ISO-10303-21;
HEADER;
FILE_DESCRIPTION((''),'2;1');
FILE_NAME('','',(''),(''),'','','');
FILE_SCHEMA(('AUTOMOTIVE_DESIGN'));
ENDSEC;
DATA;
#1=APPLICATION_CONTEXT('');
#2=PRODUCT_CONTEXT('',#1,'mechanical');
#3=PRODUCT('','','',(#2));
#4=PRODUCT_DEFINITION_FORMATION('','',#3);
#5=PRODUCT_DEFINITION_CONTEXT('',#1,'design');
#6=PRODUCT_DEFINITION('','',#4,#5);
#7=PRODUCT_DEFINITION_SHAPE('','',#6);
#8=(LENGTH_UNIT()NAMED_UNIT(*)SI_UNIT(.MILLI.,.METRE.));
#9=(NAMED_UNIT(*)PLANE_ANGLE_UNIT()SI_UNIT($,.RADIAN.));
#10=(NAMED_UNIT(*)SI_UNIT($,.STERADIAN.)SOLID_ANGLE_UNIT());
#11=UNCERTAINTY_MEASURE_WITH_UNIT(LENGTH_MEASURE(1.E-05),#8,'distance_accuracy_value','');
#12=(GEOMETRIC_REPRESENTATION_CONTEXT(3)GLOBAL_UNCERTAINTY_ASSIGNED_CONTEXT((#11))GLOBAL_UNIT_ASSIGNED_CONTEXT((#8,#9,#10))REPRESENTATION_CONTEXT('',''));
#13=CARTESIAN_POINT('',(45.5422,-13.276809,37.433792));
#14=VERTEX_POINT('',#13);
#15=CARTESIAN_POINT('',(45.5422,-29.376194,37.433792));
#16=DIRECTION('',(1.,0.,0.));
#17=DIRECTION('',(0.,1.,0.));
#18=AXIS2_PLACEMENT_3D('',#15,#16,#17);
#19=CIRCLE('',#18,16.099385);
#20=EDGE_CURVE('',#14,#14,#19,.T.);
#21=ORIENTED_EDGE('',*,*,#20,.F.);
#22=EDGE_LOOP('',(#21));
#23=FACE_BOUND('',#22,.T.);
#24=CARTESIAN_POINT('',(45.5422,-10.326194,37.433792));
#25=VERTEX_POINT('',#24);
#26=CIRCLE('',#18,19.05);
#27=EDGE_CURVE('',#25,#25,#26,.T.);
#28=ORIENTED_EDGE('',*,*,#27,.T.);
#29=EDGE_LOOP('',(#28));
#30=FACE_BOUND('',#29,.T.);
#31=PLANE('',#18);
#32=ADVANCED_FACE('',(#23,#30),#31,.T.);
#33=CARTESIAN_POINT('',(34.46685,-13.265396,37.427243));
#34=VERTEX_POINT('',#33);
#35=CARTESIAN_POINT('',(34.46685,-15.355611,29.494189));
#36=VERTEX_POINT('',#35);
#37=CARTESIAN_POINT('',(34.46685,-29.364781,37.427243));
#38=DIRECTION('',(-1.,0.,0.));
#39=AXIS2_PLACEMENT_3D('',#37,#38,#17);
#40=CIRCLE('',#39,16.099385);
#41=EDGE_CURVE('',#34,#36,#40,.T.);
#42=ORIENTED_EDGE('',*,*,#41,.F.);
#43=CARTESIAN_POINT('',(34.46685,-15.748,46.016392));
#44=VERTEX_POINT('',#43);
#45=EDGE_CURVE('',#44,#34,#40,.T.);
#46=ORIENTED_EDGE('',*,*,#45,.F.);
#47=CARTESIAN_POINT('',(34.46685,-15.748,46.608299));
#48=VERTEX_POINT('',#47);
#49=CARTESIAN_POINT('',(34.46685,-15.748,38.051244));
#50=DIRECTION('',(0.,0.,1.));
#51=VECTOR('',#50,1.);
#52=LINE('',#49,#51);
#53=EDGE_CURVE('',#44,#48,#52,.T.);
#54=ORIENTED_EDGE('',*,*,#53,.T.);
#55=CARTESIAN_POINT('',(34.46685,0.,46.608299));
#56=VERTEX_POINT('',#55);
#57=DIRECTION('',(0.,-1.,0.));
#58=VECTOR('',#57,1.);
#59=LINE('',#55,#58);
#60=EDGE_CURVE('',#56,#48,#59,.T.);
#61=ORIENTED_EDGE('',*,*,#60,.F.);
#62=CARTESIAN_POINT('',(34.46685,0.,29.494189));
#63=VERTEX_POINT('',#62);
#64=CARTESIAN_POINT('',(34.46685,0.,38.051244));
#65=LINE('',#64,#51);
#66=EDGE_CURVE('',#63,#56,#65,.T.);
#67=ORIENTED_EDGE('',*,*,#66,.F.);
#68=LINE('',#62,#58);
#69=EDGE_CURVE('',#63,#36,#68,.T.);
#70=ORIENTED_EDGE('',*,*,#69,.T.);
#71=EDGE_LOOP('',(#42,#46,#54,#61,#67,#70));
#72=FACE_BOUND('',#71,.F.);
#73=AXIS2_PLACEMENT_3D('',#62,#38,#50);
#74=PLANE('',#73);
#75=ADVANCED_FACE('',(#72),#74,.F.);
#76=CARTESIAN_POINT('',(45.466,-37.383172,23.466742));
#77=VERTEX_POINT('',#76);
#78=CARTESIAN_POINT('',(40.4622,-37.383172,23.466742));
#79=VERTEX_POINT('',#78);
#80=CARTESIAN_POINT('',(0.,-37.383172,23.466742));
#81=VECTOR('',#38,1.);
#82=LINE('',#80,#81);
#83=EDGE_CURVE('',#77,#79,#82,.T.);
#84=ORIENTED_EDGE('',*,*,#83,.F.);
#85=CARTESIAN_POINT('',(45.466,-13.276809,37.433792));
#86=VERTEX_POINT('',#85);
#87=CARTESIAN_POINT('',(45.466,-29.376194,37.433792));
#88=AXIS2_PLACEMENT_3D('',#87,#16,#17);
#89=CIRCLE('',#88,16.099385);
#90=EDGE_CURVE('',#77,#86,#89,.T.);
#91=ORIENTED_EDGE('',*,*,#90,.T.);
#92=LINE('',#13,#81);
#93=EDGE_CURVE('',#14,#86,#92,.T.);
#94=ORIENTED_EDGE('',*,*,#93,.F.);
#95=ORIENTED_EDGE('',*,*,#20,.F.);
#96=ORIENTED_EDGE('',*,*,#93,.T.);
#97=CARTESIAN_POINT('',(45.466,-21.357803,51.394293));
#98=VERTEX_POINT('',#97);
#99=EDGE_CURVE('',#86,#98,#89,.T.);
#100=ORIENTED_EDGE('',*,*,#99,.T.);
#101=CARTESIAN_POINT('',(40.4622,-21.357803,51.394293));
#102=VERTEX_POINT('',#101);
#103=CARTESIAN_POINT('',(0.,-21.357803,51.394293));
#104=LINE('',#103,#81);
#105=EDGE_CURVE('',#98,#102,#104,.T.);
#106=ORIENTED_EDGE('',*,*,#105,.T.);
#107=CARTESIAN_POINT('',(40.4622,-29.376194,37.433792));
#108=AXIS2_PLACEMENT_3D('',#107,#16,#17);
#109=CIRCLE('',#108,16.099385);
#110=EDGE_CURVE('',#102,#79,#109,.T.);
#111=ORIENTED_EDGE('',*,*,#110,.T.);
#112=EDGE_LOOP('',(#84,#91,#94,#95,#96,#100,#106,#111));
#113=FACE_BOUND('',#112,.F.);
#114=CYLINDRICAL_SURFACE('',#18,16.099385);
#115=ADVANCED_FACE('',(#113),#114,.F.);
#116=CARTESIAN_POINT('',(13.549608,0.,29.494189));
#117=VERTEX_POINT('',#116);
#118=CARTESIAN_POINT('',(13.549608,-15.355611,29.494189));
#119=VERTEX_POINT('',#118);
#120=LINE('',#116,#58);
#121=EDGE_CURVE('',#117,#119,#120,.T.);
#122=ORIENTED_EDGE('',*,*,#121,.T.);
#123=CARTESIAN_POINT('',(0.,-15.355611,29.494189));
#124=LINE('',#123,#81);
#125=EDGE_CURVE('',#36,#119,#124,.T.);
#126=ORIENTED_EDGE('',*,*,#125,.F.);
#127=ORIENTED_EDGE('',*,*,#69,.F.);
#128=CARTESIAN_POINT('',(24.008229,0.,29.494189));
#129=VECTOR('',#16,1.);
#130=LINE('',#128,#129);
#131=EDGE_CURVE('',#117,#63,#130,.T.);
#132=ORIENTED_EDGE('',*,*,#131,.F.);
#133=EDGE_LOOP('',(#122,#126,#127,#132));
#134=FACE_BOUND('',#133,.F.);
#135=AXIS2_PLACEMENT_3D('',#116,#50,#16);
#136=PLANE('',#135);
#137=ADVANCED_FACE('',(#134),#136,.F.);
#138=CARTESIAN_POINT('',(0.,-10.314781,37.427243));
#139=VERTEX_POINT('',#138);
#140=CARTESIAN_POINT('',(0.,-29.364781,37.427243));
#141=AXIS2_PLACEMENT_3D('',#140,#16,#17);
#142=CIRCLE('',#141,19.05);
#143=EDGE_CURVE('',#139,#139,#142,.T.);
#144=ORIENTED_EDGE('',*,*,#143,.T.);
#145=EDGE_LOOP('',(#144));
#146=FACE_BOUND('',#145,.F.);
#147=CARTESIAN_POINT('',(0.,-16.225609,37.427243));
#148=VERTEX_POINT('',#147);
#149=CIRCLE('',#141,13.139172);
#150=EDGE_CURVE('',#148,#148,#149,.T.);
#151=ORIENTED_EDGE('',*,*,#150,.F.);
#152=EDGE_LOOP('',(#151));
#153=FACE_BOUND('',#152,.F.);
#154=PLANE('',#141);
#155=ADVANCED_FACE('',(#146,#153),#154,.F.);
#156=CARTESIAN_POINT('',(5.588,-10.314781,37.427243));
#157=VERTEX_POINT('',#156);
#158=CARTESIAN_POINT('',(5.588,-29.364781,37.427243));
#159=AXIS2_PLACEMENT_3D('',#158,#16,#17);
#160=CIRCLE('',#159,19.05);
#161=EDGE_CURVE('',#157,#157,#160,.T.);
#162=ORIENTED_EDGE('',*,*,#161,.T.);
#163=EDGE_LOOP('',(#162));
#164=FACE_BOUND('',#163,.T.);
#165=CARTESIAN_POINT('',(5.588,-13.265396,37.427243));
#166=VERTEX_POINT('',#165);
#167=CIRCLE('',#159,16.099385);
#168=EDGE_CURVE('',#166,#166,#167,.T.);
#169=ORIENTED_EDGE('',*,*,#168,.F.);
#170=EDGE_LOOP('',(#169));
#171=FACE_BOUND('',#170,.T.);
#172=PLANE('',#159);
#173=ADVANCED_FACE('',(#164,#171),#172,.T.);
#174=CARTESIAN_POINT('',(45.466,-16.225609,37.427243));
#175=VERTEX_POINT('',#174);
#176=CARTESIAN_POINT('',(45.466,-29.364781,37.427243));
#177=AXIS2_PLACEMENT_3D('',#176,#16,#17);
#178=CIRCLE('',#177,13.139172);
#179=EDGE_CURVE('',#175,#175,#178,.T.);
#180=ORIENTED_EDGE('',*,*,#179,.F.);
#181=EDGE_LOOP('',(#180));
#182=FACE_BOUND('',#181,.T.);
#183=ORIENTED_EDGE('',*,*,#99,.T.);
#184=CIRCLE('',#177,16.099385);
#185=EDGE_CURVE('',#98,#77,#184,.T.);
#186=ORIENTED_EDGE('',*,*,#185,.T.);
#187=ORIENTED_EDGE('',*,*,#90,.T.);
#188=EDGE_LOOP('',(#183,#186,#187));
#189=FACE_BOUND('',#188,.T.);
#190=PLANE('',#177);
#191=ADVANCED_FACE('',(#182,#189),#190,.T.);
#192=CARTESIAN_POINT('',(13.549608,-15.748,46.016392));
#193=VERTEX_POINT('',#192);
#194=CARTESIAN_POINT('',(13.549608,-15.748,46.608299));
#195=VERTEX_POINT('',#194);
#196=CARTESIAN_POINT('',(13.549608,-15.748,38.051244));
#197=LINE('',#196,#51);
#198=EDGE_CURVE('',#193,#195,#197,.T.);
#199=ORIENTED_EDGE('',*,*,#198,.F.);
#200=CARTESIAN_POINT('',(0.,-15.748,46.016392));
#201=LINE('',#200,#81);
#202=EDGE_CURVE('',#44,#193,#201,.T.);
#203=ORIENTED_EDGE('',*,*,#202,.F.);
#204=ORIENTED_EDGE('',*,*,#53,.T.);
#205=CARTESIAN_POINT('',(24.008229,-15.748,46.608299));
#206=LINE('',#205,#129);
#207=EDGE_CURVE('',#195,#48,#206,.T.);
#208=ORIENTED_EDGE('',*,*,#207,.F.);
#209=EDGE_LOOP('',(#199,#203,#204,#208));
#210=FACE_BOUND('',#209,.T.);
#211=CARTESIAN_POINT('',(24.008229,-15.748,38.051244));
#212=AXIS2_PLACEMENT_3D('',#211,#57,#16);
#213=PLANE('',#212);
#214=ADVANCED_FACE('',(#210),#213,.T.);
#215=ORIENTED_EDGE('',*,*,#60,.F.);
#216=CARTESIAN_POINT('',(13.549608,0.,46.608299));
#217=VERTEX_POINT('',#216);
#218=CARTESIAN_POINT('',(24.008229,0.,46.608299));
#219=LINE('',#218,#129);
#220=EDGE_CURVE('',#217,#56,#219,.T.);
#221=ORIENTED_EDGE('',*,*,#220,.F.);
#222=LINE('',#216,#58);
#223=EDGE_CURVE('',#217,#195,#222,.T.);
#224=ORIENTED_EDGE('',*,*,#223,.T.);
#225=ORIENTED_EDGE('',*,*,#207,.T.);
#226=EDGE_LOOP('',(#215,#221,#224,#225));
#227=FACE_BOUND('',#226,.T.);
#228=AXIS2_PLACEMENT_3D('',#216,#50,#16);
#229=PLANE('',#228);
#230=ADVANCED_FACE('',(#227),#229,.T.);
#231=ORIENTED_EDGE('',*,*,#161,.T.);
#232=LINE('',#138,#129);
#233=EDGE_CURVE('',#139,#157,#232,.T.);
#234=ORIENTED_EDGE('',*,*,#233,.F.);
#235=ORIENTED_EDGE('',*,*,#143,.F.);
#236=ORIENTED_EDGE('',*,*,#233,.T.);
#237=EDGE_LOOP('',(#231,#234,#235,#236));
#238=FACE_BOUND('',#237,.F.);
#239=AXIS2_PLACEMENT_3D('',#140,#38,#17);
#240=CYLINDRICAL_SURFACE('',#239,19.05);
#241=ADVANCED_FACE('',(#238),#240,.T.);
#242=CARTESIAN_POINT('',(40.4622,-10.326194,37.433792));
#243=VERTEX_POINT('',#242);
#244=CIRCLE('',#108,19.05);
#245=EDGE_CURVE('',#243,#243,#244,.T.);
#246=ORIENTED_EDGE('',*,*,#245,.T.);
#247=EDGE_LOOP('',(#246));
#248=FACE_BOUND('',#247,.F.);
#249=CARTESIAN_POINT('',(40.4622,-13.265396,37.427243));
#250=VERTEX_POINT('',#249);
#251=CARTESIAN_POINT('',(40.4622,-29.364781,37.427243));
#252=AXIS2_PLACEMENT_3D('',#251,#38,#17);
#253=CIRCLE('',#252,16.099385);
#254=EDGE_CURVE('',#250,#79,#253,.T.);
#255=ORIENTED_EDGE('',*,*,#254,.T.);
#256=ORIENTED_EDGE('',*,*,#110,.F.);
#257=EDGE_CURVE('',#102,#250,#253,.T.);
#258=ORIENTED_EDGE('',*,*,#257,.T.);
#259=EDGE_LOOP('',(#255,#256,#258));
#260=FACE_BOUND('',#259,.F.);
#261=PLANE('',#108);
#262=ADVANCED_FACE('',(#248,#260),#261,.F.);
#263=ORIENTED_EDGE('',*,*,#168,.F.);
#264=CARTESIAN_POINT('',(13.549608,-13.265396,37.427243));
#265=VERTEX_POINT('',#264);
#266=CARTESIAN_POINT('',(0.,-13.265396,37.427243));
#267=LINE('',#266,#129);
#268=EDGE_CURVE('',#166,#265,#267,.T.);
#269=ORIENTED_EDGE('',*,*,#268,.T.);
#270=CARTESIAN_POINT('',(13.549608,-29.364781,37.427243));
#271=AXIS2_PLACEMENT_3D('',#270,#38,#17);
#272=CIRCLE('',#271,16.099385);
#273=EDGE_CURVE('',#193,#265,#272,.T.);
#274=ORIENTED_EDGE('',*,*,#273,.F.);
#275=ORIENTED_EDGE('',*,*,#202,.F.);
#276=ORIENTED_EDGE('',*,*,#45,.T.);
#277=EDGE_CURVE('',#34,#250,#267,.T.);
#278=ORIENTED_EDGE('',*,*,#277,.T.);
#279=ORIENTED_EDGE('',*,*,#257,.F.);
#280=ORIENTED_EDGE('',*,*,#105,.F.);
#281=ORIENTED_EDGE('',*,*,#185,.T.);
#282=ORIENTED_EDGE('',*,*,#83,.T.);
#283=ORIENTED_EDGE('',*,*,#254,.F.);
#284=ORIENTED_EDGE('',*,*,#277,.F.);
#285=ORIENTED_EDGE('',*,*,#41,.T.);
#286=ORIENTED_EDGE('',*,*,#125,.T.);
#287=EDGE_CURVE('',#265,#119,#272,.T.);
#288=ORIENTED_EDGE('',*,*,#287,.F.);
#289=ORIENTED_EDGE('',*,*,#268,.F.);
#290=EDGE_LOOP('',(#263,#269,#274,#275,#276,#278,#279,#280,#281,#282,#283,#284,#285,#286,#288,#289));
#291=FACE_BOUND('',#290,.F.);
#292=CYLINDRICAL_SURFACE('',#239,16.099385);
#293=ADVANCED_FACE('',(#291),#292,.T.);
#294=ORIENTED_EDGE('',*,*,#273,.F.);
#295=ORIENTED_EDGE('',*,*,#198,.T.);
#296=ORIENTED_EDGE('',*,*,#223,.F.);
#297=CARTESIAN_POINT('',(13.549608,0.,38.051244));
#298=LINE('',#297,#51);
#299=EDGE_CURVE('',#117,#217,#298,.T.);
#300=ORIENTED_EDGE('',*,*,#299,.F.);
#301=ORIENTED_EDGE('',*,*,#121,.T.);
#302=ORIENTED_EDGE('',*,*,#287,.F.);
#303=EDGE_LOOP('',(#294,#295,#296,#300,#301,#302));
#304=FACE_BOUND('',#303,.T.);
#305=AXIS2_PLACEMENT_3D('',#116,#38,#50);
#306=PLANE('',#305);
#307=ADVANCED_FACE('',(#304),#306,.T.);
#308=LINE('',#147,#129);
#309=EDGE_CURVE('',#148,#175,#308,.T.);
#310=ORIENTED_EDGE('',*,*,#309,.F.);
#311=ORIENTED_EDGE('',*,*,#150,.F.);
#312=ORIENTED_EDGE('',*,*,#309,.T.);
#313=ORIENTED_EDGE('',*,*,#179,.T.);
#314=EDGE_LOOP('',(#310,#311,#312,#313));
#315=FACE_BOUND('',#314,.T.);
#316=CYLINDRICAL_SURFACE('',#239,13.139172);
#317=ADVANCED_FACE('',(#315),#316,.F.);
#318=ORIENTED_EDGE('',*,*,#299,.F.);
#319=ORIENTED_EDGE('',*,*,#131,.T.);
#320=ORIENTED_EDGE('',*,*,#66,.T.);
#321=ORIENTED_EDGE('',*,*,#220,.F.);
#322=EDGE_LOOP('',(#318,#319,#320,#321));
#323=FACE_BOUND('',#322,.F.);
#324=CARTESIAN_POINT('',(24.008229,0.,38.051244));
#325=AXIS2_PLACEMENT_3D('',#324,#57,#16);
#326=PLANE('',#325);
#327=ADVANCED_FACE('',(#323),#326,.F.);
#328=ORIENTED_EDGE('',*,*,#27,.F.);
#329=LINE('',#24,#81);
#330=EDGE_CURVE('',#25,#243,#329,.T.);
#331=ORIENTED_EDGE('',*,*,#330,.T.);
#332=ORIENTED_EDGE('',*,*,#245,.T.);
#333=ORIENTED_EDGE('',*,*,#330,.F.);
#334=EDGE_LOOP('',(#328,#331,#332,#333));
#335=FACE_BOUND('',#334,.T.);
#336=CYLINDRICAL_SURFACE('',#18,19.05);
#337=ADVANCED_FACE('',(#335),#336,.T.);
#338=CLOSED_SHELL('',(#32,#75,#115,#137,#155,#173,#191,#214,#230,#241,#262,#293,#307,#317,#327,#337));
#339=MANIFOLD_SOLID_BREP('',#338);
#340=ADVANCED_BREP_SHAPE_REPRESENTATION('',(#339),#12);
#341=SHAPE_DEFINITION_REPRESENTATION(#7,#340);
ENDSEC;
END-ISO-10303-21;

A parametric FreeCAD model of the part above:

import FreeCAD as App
import Part
import Sketcher

V = App.Vector
Q = App.Units.Quantity

doc = App.newDocument("Part")
body = doc.addObject("PartDesign::Body", "Body")

# Sketch on YZ plane
sketch1 = body.newObject("Sketcher::SketchObject", "Sketch")
sketch1.AttachmentSupport = (doc.getObject("YZ_Plane"), [""])
sketch1.MapMode = "FlatFace"
sketch1.addGeometry([
    Part.Circle(V(-29, 37, 0), V(0, 0, 1), 19),
    Part.Circle(V(-29, 37, 0), V(0, 0, 1), 16),
], False)
sketch1.addConstraint([
    Sketcher.Constraint("Coincident", 1, 3, 0, 3),
    Sketcher.Constraint("Diameter", 0, Q("1.5 in")),
    Sketcher.Constraint("Diameter", 1, 32.19877),
    Sketcher.Constraint("DistanceX", 0, 3, -1, 1, 29.364781),
    Sketcher.Constraint("DistanceY", -1, 1, 0, 3, 37.427243),
])
pad1 = body.newObject("PartDesign::Pad", "Pad")
pad1.Profile = sketch1
pad1.Length = Q("0.22 in")

# Sketch on YZ plane
sketch2 = body.newObject("Sketcher::SketchObject", "Sketch001")
sketch2.AttachmentSupport = (doc.getObject("YZ_Plane"), [""])
sketch2.MapMode = "FlatFace"
sketch2.addGeometry([
    Part.Circle(V(-29, 37, 0), V(0, 0, 1), 16),
    Part.Circle(V(-29, 37, 0), V(0, 0, 1), 13),
], False)
sketch2.addConstraint([
    Sketcher.Constraint("Coincident", 1, 3, 0, 3),
    Sketcher.Constraint("Diameter", 0, 32.19877),
    Sketcher.Constraint("Diameter", 1, 26.278344),
    Sketcher.Constraint("DistanceX", 0, 3, -1, 1, 29.364781),
    Sketcher.Constraint("DistanceY", -1, 1, 0, 3, 37.427243),
])
pad2 = body.newObject("PartDesign::Pad", "Pad001")
pad2.Profile = sketch2
pad2.Length = Q("1.79 in")

# Sketch on YZ plane
sketch3 = body.newObject("Sketcher::SketchObject", "Sketch002")
sketch3.AttachmentSupport = (doc.getObject("YZ_Plane"), [""])
sketch3.MapMode = "FlatFace"
sketch3.AttachmentOffset = App.Placement(V(0, 0, 1.793 * 25.4), App.Rotation())
sketch3.addGeometry([
    Part.Circle(V(-29, 37, 0), V(0, 0, 1), 19),
    Part.Circle(V(-29, 37, 0), V(0, 0, 1), 16),
], False)
sketch3.addConstraint([
    Sketcher.Constraint("Coincident", 1, 3, 0, 3),
    Sketcher.Constraint("Diameter", 0, Q("1.5 in")),
    Sketcher.Constraint("Diameter", 1, 32.19877),
    Sketcher.Constraint("DistanceY", -1, 1, 0, 3, 37.433792),
    Sketcher.Constraint("DistanceX", 0, 3, -1, 1, 29.376194),
])
pad3 = body.newObject("PartDesign::Pad", "Pad002")
pad3.Profile = sketch3
pad3.Length = Q("0.2 in")
pad3.Reversed = True

# Sketch on XZ plane
sketch4 = body.newObject("Sketcher::SketchObject", "Sketch003")
sketch4.AttachmentSupport = (doc.getObject("XZ_Plane"), [""])
sketch4.MapMode = "FlatFace"
sketch4.addGeometry([
    Part.LineSegment(V(14, 47, 0), V(14, 29, 0)),
    Part.LineSegment(V(14, 29, 0), V(34, 29, 0)),
    Part.LineSegment(V(34, 29, 0), V(34, 47, 0)),
    Part.LineSegment(V(34, 47, 0), V(14, 47, 0)),
], False)
sketch4.addConstraint([
    Sketcher.Constraint("Coincident", 0, 2, 1, 1),
    Sketcher.Constraint("Coincident", 1, 2, 2, 1),
    Sketcher.Constraint("Coincident", 2, 2, 3, 1),
    Sketcher.Constraint("Coincident", 3, 2, 0, 1),
    Sketcher.Constraint("Vertical", 0),
    Sketcher.Constraint("Horizontal", 1),
    Sketcher.Constraint("Vertical", 2),
    Sketcher.Constraint("Horizontal", 3),
    Sketcher.Constraint("DistanceX", 1, 1, 1, 2, 20.917241),
    Sketcher.Constraint("DistanceY", 0, 2, 0, 1, 17.11411),
    Sketcher.Constraint("DistanceY", -1, 1, 2, 2, 46.608299),
    Sketcher.Constraint("DistanceX", -1, 1, 0, 2, 13.549608),
])
pad4 = body.newObject("PartDesign::Pad", "Pad003")
pad4.Profile = sketch4
pad4.Length = Q("0.62 in")

doc.recompute()
